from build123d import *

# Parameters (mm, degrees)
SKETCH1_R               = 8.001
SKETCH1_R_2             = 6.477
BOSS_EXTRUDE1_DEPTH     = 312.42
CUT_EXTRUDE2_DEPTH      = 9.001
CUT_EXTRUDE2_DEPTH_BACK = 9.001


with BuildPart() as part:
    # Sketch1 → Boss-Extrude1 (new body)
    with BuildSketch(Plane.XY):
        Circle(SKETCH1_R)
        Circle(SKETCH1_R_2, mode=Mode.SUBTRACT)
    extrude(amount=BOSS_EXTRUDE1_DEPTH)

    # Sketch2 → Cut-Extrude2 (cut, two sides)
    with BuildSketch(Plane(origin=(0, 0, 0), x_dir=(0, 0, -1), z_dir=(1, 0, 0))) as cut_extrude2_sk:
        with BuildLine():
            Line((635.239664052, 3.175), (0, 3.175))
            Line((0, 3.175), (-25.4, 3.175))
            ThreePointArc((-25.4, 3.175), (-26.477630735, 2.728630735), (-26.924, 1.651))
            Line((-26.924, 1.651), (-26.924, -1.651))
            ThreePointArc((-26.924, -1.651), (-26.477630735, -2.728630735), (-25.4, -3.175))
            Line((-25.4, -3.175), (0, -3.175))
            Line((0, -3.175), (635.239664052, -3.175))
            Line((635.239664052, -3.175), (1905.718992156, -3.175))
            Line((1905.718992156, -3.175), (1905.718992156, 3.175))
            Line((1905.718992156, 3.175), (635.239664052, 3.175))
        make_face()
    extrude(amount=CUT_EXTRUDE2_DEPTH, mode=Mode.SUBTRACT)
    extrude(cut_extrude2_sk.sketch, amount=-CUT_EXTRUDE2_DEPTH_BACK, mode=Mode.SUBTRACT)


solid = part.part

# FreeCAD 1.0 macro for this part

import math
import FreeCAD as App
import Part
import Sketcher

V = App.Vector
Q = App.Units.Quantity

doc = App.newDocument("Part")
body = doc.addObject("PartDesign::Body", "Body")

# Sketch on XY plane
sketch1 = body.newObject("Sketcher::SketchObject", "Sketch")
sketch1.AttachmentSupport = (doc.getObject("XY_Plane"), [""])
sketch1.MapMode = "FlatFace"
sketch1.addGeometry([
    Part.Circle(V(0, 0, 0), V(0, 0, 1), 8),
    Part.Circle(V(0, 0, 0), V(0, 0, 1), 6),
], False)
sketch1.addConstraint([
    Sketcher.Constraint("Coincident", 0, 3, -1, 1),
    Sketcher.Constraint("Coincident", 1, 3, -1, 1),
    Sketcher.Constraint("Diameter", 0, Q("0.63 in")),
    Sketcher.Constraint("Diameter", 1, Q("0.51 in")),
])
pad1 = body.newObject("PartDesign::Pad", "Pad")
pad1.Profile = sketch1
pad1.Length = Q("12.3 in")

# Sketch on YZ plane
sketch2 = body.newObject("Sketcher::SketchObject", "Sketch001")
sketch2.AttachmentSupport = (doc.getObject("YZ_Plane"), [""])
sketch2.MapMode = "FlatFace"
sketch2.addGeometry([
    Part.ArcOfCircle(Part.Circle(V(1.7, 25.4, 0), V(0, 0, 1), 1.5), math.radians(0), math.radians(90)),  # 0
    Part.LineSegment(V(1.7, 26.9, 0), V(-1.7, 26.9, 0)),  # 1
    Part.ArcOfCircle(Part.Circle(V(-1.7, 25.4, 0), V(0, 0, 1), 1.5), math.radians(90), math.radians(180)),  # 2
    Part.LineSegment(V(-3.2, 25.4, 0), V(-3.2, -1905.7, 0)),  # 3
    Part.LineSegment(V(-3.2, -1905.7, 0), V(3.2, -1905.7, 0)),  # 4
    Part.LineSegment(V(3.2, -1905.7, 0), V(3.2, 25.4, 0)),  # 5
], False)
sketch2.addConstraint([
    Sketcher.Constraint("Tangent", 0, 2, 1, 1),
    Sketcher.Constraint("Tangent", 1, 2, 2, 1),
    Sketcher.Constraint("Tangent", 2, 2, 3, 1),
    Sketcher.Constraint("Coincident", 3, 2, 4, 1),
    Sketcher.Constraint("Coincident", 4, 2, 5, 1),
    Sketcher.Constraint("Tangent", 5, 2, 0, 1),
    Sketcher.Constraint("Horizontal", 1),
    Sketcher.Constraint("Vertical", 3),
    Sketcher.Constraint("Horizontal", 4),
    Sketcher.Constraint("Vertical", 5),
    Sketcher.Constraint("Equal", 0, 2),
    Sketcher.Constraint("Radius", 0, Q("0.06 in")),
    Sketcher.Constraint("DistanceY", -1, 1, 0, 3, Q("1 in")),
    Sketcher.Constraint("DistanceX", 1, 2, 1, 1, Q("0.13 in")),
    Sketcher.Constraint("DistanceX", -1, 1, 0, 3, Q("0.065 in")),
    Sketcher.Constraint("DistanceY", 3, 2, 3, 1, Q("1931.118992 mm")),
])
pocket1 = body.newObject("PartDesign::Pocket", "Pocket")
pocket1.Profile = sketch2
pocket1.Type = "ThroughAll"
pocket1.Midplane = True

doc.recompute()
